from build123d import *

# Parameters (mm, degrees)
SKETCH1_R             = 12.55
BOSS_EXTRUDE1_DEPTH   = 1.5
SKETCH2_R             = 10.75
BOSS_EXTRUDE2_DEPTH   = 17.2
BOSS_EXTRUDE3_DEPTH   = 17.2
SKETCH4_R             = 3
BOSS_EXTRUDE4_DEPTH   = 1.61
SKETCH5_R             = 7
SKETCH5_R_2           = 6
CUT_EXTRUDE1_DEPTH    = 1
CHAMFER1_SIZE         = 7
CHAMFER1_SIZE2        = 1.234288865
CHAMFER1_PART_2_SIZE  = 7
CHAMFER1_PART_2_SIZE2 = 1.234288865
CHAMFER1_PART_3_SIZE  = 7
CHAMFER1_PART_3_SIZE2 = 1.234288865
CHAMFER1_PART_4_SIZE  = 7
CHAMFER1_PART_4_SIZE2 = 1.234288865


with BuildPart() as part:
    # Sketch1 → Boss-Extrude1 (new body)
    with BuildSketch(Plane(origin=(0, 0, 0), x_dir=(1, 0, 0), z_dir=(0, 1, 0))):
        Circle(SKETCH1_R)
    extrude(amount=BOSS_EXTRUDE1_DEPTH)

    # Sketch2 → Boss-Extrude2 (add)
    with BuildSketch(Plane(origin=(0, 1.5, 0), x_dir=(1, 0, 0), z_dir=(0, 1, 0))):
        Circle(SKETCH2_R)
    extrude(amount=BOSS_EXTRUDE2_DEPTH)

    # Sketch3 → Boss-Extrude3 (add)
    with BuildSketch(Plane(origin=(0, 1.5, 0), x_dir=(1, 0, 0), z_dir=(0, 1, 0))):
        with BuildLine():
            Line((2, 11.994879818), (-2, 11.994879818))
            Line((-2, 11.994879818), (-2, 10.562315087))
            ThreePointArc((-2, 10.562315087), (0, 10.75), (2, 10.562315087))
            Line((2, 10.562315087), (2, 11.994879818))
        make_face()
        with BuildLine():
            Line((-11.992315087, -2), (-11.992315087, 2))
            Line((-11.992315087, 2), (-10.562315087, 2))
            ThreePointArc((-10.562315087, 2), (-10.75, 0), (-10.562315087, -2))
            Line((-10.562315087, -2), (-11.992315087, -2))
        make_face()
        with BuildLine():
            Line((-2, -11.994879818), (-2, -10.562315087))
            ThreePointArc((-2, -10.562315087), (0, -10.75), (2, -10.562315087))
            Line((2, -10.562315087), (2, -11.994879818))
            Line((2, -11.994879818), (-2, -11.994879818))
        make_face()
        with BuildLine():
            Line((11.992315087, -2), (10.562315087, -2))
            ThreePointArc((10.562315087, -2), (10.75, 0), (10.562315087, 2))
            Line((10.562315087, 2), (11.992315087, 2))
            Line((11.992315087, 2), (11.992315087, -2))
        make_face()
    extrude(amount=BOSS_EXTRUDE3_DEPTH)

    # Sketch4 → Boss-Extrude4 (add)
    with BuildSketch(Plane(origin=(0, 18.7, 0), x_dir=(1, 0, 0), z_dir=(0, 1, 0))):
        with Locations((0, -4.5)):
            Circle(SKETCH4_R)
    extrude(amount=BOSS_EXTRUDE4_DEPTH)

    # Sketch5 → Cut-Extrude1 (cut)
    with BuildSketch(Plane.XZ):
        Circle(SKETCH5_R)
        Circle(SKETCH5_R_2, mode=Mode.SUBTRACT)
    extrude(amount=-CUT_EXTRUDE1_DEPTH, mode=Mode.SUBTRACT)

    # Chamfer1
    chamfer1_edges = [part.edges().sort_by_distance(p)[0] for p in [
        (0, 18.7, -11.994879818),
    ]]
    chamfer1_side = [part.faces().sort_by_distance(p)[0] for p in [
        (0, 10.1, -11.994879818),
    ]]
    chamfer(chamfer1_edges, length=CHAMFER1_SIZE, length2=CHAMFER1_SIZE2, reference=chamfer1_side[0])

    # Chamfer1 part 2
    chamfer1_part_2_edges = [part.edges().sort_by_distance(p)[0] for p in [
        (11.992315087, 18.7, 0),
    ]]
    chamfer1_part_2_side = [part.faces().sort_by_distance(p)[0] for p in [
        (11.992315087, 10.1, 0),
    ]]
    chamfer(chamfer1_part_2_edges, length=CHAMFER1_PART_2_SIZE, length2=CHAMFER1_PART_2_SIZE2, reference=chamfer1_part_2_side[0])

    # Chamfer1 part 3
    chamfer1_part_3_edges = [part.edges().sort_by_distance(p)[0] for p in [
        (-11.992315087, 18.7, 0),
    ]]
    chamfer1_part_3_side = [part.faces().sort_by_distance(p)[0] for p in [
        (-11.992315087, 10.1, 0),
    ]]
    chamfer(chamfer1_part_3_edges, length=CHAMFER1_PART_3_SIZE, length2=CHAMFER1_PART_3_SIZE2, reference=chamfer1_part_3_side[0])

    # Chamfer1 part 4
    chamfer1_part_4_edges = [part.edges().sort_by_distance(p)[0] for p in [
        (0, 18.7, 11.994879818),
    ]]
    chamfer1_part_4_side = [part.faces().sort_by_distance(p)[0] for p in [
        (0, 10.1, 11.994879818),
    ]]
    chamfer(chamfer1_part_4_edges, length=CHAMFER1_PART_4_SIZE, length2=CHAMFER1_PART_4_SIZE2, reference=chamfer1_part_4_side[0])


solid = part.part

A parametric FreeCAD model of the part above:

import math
import FreeCAD as App
import Part
import Sketcher

V = App.Vector
Q = App.Units.Quantity


def edges_at(feature, points):
    """Names of the edges that pass closest to the given points."""
    edges = feature.Shape.Edges
    near = lambda p: min(range(len(edges)), key=lambda i: edges[i].distToShape(Part.Vertex(*p))[0])
    return sorted({f"Edge{near(p) + 1}" for p in points})

doc = App.newDocument("Part")
body = doc.addObject("PartDesign::Body", "Body")

sketch1 = body.newObject("Sketcher::SketchObject", "Sketch")
sketch1.AttachmentSupport = (doc.getObject("XZ_Plane"), [""])
sketch1.MapMode = "FlatFace"
sketch1.addGeometry(Part.Circle(V(0, 0, 0), V(0, 0, 1), 13), False)
sketch1.addConstraint(Sketcher.Constraint("Coincident", 0, 3, -1, 1))
sketch1.addConstraint(Sketcher.Constraint("Diameter", 0, Q("25.1 mm")))
pad1 = body.newObject("PartDesign::Pad", "Pad")
pad1.Profile = sketch1
pad1.Length = 1.5
pad1.Reversed = True

sketch2 = body.newObject("Sketcher::SketchObject", "Sketch001")
sketch2.AttachmentSupport = (doc.getObject("XZ_Plane"), [""])
sketch2.MapMode = "FlatFace"
sketch2.AttachmentOffset = App.Placement(V(0, 0, -1.5), App.Rotation())
sketch2.addGeometry(Part.Circle(V(0, 0, 0), V(0, 0, 1), 11), False)
sketch2.addConstraint(Sketcher.Constraint("Coincident", 0, 3, -1, 1))
sketch2.addConstraint(Sketcher.Constraint("Diameter", 0, Q("21.5 mm")))
pad2 = body.newObject("PartDesign::Pad", "Pad001")
pad2.Profile = sketch2
pad2.Length = 17.2
pad2.Reversed = True

sketch3 = body.newObject("Sketcher::SketchObject", "Sketch002")
sketch3.AttachmentSupport = (doc.getObject("XZ_Plane"), [""])
sketch3.MapMode = "FlatFace"
sketch3.AttachmentOffset = App.Placement(V(0, 0, -1.5), App.Rotation())
sketch3.addGeometry(Part.LineSegment(V(2, -12, 0), V(-2, -12, 0)), False)
sketch3.addGeometry(Part.LineSegment(V(-2, -12, 0), V(-2, -10.6, 0)), False)
sketch3.addGeometry(Part.ArcOfCircle(Part.Circle(V(0, 0, 0), V(0, 0, 1), 10.7), math.radians(-101), math.radians(-79)), False)
sketch3.addGeometry(Part.LineSegment(V(2, -10.6, 0), V(2, -12, 0)), False)
sketch3.addGeometry(Part.LineSegment(V(-12, -2, 0), V(-12, 2, 0)), False)
sketch3.addGeometry(Part.LineSegment(V(-12, 2, 0), V(-10.6, 2, 0)), False)
sketch3.addGeometry(Part.ArcOfCircle(Part.Circle(V(0, 0, 0), V(0, 0, 1), 10.7), math.radians(169), math.radians(191)), False)
sketch3.addGeometry(Part.LineSegment(V(-10.6, -2, 0), V(-12, -2, 0)), False)
sketch3.addGeometry(Part.LineSegment(V(-2, 10.6, 0), V(-2, 12, 0)), False)
sketch3.addGeometry(Part.LineSegment(V(-2, 12, 0), V(2, 12, 0)), False)
sketch3.addGeometry(Part.LineSegment(V(2, 12, 0), V(2, 10.6, 0)), False)
sketch3.addGeometry(Part.ArcOfCircle(Part.Circle(V(0, 0, 0), V(0, 0, 1), 10.7), math.radians(79), math.radians(101)), False)
sketch3.addGeometry(Part.LineSegment(V(10.6, 2, 0), V(12, 2, 0)), False)
sketch3.addGeometry(Part.LineSegment(V(12, 2, 0), V(12, -2, 0)), False)
sketch3.addGeometry(Part.LineSegment(V(12, -2, 0), V(10.6, -2, 0)), False)
sketch3.addGeometry(Part.ArcOfCircle(Part.Circle(V(0, 0, 0), V(0, 0, 1), 10.7), math.radians(-11), math.radians(11)), False)
sketch3.addConstraint(Sketcher.Constraint("Coincident", 0, 2, 1, 1))
sketch3.addConstraint(Sketcher.Constraint("Coincident", 1, 2, 2, 1))
sketch3.addConstraint(Sketcher.Constraint("Coincident", 2, 2, 3, 1))
sketch3.addConstraint(Sketcher.Constraint("Coincident", 3, 2, 0, 1))
sketch3.addConstraint(Sketcher.Constraint("Coincident", 4, 2, 5, 1))
sketch3.addConstraint(Sketcher.Constraint("Coincident", 5, 2, 6, 1))
sketch3.addConstraint(Sketcher.Constraint("Coincident", 6, 2, 7, 1))
sketch3.addConstraint(Sketcher.Constraint("Coincident", 7, 2, 4, 1))
sketch3.addConstraint(Sketcher.Constraint("Coincident", 8, 2, 9, 1))
sketch3.addConstraint(Sketcher.Constraint("Coincident", 9, 2, 10, 1))
sketch3.addConstraint(Sketcher.Constraint("Coincident", 10, 2, 11, 1))
sketch3.addConstraint(Sketcher.Constraint("Coincident", 11, 2, 8, 1))
sketch3.addConstraint(Sketcher.Constraint("Coincident", 12, 2, 13, 1))
sketch3.addConstraint(Sketcher.Constraint("Coincident", 13, 2, 14, 1))
sketch3.addConstraint(Sketcher.Constraint("Coincident", 14, 2, 15, 1))
sketch3.addConstraint(Sketcher.Constraint("Coincident", 15, 2, 12, 1))
sketch3.addConstraint(Sketcher.Constraint("Horizontal", 0))
sketch3.addConstraint(Sketcher.Constraint("Vertical", 1))
sketch3.addConstraint(Sketcher.Constraint("Vertical", 3))
sketch3.addConstraint(Sketcher.Constraint("Vertical", 4))
sketch3.addConstraint(Sketcher.Constraint("Horizontal", 5))
sketch3.addConstraint(Sketcher.Constraint("Horizontal", 7))
sketch3.addConstraint(Sketcher.Constraint("Vertical", 8))
sketch3.addConstraint(Sketcher.Constraint("Horizontal", 9))
sketch3.addConstraint(Sketcher.Constraint("Vertical", 10))
sketch3.addConstraint(Sketcher.Constraint("Horizontal", 12))
sketch3.addConstraint(Sketcher.Constraint("Vertical", 13))
sketch3.addConstraint(Sketcher.Constraint("Horizontal", 14))
sketch3.addConstraint(Sketcher.Constraint("Coincident", 2, 3, -1, 1))
sketch3.addConstraint(Sketcher.Constraint("Coincident", 6, 3, -1, 1))
sketch3.addConstraint(Sketcher.Constraint("Coincident", 11, 3, -1, 1))
sketch3.addConstraint(Sketcher.Constraint("Coincident", 15, 3, -1, 1))
sketch3.addConstraint(Sketcher.Constraint("Equal", 2, 6))
sketch3.addConstraint(Sketcher.Constraint("Equal", 6, 11))
sketch3.addConstraint(Sketcher.Constraint("Equal", 11, 15))
sketch3.addConstraint(Sketcher.Constraint("Symmetric", 3, 2, 8, 2, -1, 1))
sketch3.addConstraint(Sketcher.Constraint("Symmetric", 7, 2, 12, 2, -1, 1))
sketch3.addConstraint(Sketcher.Constraint("Horizontal", 1, 2, 2, 2))
sketch3.addConstraint(Sketcher.Constraint("Horizontal", 10, 2, 11, 2))
sketch3.addConstraint(Sketcher.Constraint("Horizontal", 5, 2, 12, 2))
sketch3.addConstraint(Sketcher.Constraint("Horizontal", 7, 2, 13, 2))
sketch3.addConstraint(Sketcher.Constraint("Equal", 9, 4))
sketch3.addConstraint(Sketcher.Constraint("DistanceX", 0, 2, 0, 1, Q("4 mm")))
sketch3.addConstraint(Sketcher.Constraint("Radius", 2, Q("10.75 mm")))
sketch3.addConstraint(Sketcher.Constraint("DistanceX", 5, 1, 5, 2, Q("1.43 mm")))
sketch3.addConstraint(Sketcher.Constraint("DistanceY", 1, 1, 1, 2, Q("1.432565 mm")))
pad3 = body.newObject("PartDesign::Pad", "Pad002")
pad3.Profile = sketch3
pad3.Length = 17.2
pad3.Reversed = True

sketch4 = body.newObject("Sketcher::SketchObject", "Sketch003")
sketch4.AttachmentSupport = (doc.getObject("XZ_Plane"), [""])
sketch4.MapMode = "FlatFace"
sketch4.AttachmentOffset = App.Placement(V(0, 0, -18.7), App.Rotation())
sketch4.addGeometry(Part.Circle(V(0, 4.5, 0), V(0, 0, 1), 3), False)
sketch4.addConstraint(Sketcher.Constraint("PointOnObject", 0, 3, -2))
sketch4.addConstraint(Sketcher.Constraint("Diameter", 0, Q("6 mm")))
sketch4.addConstraint(Sketcher.Constraint("DistanceY", -1, 1, 0, 3, Q("4.5 mm")))
pad4 = body.newObject("PartDesign::Pad", "Pad003")
pad4.Profile = sketch4
pad4.Length = 1.61
pad4.Reversed = True

sketch5 = body.newObject("Sketcher::SketchObject", "Sketch004")
sketch5.AttachmentSupport = (doc.getObject("XZ_Plane"), [""])
sketch5.MapMode = "FlatFace"
sketch5.addGeometry(Part.Circle(V(0, 0, 0), V(0, 0, 1), 7), False)
sketch5.addGeometry(Part.Circle(V(0, 0, 0), V(0, 0, 1), 6), False)
sketch5.addConstraint(Sketcher.Constraint("Coincident", 0, 3, -1, 1))
sketch5.addConstraint(Sketcher.Constraint("Coincident", 1, 3, -1, 1))
sketch5.addConstraint(Sketcher.Constraint("Diameter", 0, Q("14 mm")))
sketch5.addConstraint(Sketcher.Constraint("Diameter", 1, Q("12 mm")))
pocket1 = body.newObject("PartDesign::Pocket", "Pocket")
pocket1.Profile = sketch5
pocket1.Length = 1
doc.recompute()

chamfer = body.newObject("PartDesign::Chamfer", "Chamfer")
chamfer.Base = (pocket1, edges_at(pocket1, [(0, 18.7, -11.995)]))
chamfer.ChamferType = "Two distances"
chamfer.Size = 7
chamfer.Size2 = 1.234289
doc.recompute()

chamfer2 = body.newObject("PartDesign::Chamfer", "Chamfer001")
chamfer2.Base = (chamfer, edges_at(chamfer, [(11.992, 18.7, 0)]))
chamfer2.ChamferType = "Two distances"
chamfer2.Size = 7
chamfer2.Size2 = 1.234289
chamfer2.FlipDirection = True
doc.recompute()

chamfer3 = body.newObject("PartDesign::Chamfer", "Chamfer002")
chamfer3.Base = (chamfer2, edges_at(chamfer2, [(-11.992, 18.7, 0)]))
chamfer3.ChamferType = "Two distances"
chamfer3.Size = 7
chamfer3.Size2 = 1.234289
chamfer3.FlipDirection = True
doc.recompute()

chamfer4 = body.newObject("PartDesign::Chamfer", "Chamfer003")
chamfer4.Base = (chamfer3, edges_at(chamfer3, [(0, 18.7, 11.995)]))
chamfer4.ChamferType = "Two distances"
chamfer4.Size = 7
chamfer4.Size2 = 1.234289
chamfer4.FlipDirection = True

doc.recompute()
